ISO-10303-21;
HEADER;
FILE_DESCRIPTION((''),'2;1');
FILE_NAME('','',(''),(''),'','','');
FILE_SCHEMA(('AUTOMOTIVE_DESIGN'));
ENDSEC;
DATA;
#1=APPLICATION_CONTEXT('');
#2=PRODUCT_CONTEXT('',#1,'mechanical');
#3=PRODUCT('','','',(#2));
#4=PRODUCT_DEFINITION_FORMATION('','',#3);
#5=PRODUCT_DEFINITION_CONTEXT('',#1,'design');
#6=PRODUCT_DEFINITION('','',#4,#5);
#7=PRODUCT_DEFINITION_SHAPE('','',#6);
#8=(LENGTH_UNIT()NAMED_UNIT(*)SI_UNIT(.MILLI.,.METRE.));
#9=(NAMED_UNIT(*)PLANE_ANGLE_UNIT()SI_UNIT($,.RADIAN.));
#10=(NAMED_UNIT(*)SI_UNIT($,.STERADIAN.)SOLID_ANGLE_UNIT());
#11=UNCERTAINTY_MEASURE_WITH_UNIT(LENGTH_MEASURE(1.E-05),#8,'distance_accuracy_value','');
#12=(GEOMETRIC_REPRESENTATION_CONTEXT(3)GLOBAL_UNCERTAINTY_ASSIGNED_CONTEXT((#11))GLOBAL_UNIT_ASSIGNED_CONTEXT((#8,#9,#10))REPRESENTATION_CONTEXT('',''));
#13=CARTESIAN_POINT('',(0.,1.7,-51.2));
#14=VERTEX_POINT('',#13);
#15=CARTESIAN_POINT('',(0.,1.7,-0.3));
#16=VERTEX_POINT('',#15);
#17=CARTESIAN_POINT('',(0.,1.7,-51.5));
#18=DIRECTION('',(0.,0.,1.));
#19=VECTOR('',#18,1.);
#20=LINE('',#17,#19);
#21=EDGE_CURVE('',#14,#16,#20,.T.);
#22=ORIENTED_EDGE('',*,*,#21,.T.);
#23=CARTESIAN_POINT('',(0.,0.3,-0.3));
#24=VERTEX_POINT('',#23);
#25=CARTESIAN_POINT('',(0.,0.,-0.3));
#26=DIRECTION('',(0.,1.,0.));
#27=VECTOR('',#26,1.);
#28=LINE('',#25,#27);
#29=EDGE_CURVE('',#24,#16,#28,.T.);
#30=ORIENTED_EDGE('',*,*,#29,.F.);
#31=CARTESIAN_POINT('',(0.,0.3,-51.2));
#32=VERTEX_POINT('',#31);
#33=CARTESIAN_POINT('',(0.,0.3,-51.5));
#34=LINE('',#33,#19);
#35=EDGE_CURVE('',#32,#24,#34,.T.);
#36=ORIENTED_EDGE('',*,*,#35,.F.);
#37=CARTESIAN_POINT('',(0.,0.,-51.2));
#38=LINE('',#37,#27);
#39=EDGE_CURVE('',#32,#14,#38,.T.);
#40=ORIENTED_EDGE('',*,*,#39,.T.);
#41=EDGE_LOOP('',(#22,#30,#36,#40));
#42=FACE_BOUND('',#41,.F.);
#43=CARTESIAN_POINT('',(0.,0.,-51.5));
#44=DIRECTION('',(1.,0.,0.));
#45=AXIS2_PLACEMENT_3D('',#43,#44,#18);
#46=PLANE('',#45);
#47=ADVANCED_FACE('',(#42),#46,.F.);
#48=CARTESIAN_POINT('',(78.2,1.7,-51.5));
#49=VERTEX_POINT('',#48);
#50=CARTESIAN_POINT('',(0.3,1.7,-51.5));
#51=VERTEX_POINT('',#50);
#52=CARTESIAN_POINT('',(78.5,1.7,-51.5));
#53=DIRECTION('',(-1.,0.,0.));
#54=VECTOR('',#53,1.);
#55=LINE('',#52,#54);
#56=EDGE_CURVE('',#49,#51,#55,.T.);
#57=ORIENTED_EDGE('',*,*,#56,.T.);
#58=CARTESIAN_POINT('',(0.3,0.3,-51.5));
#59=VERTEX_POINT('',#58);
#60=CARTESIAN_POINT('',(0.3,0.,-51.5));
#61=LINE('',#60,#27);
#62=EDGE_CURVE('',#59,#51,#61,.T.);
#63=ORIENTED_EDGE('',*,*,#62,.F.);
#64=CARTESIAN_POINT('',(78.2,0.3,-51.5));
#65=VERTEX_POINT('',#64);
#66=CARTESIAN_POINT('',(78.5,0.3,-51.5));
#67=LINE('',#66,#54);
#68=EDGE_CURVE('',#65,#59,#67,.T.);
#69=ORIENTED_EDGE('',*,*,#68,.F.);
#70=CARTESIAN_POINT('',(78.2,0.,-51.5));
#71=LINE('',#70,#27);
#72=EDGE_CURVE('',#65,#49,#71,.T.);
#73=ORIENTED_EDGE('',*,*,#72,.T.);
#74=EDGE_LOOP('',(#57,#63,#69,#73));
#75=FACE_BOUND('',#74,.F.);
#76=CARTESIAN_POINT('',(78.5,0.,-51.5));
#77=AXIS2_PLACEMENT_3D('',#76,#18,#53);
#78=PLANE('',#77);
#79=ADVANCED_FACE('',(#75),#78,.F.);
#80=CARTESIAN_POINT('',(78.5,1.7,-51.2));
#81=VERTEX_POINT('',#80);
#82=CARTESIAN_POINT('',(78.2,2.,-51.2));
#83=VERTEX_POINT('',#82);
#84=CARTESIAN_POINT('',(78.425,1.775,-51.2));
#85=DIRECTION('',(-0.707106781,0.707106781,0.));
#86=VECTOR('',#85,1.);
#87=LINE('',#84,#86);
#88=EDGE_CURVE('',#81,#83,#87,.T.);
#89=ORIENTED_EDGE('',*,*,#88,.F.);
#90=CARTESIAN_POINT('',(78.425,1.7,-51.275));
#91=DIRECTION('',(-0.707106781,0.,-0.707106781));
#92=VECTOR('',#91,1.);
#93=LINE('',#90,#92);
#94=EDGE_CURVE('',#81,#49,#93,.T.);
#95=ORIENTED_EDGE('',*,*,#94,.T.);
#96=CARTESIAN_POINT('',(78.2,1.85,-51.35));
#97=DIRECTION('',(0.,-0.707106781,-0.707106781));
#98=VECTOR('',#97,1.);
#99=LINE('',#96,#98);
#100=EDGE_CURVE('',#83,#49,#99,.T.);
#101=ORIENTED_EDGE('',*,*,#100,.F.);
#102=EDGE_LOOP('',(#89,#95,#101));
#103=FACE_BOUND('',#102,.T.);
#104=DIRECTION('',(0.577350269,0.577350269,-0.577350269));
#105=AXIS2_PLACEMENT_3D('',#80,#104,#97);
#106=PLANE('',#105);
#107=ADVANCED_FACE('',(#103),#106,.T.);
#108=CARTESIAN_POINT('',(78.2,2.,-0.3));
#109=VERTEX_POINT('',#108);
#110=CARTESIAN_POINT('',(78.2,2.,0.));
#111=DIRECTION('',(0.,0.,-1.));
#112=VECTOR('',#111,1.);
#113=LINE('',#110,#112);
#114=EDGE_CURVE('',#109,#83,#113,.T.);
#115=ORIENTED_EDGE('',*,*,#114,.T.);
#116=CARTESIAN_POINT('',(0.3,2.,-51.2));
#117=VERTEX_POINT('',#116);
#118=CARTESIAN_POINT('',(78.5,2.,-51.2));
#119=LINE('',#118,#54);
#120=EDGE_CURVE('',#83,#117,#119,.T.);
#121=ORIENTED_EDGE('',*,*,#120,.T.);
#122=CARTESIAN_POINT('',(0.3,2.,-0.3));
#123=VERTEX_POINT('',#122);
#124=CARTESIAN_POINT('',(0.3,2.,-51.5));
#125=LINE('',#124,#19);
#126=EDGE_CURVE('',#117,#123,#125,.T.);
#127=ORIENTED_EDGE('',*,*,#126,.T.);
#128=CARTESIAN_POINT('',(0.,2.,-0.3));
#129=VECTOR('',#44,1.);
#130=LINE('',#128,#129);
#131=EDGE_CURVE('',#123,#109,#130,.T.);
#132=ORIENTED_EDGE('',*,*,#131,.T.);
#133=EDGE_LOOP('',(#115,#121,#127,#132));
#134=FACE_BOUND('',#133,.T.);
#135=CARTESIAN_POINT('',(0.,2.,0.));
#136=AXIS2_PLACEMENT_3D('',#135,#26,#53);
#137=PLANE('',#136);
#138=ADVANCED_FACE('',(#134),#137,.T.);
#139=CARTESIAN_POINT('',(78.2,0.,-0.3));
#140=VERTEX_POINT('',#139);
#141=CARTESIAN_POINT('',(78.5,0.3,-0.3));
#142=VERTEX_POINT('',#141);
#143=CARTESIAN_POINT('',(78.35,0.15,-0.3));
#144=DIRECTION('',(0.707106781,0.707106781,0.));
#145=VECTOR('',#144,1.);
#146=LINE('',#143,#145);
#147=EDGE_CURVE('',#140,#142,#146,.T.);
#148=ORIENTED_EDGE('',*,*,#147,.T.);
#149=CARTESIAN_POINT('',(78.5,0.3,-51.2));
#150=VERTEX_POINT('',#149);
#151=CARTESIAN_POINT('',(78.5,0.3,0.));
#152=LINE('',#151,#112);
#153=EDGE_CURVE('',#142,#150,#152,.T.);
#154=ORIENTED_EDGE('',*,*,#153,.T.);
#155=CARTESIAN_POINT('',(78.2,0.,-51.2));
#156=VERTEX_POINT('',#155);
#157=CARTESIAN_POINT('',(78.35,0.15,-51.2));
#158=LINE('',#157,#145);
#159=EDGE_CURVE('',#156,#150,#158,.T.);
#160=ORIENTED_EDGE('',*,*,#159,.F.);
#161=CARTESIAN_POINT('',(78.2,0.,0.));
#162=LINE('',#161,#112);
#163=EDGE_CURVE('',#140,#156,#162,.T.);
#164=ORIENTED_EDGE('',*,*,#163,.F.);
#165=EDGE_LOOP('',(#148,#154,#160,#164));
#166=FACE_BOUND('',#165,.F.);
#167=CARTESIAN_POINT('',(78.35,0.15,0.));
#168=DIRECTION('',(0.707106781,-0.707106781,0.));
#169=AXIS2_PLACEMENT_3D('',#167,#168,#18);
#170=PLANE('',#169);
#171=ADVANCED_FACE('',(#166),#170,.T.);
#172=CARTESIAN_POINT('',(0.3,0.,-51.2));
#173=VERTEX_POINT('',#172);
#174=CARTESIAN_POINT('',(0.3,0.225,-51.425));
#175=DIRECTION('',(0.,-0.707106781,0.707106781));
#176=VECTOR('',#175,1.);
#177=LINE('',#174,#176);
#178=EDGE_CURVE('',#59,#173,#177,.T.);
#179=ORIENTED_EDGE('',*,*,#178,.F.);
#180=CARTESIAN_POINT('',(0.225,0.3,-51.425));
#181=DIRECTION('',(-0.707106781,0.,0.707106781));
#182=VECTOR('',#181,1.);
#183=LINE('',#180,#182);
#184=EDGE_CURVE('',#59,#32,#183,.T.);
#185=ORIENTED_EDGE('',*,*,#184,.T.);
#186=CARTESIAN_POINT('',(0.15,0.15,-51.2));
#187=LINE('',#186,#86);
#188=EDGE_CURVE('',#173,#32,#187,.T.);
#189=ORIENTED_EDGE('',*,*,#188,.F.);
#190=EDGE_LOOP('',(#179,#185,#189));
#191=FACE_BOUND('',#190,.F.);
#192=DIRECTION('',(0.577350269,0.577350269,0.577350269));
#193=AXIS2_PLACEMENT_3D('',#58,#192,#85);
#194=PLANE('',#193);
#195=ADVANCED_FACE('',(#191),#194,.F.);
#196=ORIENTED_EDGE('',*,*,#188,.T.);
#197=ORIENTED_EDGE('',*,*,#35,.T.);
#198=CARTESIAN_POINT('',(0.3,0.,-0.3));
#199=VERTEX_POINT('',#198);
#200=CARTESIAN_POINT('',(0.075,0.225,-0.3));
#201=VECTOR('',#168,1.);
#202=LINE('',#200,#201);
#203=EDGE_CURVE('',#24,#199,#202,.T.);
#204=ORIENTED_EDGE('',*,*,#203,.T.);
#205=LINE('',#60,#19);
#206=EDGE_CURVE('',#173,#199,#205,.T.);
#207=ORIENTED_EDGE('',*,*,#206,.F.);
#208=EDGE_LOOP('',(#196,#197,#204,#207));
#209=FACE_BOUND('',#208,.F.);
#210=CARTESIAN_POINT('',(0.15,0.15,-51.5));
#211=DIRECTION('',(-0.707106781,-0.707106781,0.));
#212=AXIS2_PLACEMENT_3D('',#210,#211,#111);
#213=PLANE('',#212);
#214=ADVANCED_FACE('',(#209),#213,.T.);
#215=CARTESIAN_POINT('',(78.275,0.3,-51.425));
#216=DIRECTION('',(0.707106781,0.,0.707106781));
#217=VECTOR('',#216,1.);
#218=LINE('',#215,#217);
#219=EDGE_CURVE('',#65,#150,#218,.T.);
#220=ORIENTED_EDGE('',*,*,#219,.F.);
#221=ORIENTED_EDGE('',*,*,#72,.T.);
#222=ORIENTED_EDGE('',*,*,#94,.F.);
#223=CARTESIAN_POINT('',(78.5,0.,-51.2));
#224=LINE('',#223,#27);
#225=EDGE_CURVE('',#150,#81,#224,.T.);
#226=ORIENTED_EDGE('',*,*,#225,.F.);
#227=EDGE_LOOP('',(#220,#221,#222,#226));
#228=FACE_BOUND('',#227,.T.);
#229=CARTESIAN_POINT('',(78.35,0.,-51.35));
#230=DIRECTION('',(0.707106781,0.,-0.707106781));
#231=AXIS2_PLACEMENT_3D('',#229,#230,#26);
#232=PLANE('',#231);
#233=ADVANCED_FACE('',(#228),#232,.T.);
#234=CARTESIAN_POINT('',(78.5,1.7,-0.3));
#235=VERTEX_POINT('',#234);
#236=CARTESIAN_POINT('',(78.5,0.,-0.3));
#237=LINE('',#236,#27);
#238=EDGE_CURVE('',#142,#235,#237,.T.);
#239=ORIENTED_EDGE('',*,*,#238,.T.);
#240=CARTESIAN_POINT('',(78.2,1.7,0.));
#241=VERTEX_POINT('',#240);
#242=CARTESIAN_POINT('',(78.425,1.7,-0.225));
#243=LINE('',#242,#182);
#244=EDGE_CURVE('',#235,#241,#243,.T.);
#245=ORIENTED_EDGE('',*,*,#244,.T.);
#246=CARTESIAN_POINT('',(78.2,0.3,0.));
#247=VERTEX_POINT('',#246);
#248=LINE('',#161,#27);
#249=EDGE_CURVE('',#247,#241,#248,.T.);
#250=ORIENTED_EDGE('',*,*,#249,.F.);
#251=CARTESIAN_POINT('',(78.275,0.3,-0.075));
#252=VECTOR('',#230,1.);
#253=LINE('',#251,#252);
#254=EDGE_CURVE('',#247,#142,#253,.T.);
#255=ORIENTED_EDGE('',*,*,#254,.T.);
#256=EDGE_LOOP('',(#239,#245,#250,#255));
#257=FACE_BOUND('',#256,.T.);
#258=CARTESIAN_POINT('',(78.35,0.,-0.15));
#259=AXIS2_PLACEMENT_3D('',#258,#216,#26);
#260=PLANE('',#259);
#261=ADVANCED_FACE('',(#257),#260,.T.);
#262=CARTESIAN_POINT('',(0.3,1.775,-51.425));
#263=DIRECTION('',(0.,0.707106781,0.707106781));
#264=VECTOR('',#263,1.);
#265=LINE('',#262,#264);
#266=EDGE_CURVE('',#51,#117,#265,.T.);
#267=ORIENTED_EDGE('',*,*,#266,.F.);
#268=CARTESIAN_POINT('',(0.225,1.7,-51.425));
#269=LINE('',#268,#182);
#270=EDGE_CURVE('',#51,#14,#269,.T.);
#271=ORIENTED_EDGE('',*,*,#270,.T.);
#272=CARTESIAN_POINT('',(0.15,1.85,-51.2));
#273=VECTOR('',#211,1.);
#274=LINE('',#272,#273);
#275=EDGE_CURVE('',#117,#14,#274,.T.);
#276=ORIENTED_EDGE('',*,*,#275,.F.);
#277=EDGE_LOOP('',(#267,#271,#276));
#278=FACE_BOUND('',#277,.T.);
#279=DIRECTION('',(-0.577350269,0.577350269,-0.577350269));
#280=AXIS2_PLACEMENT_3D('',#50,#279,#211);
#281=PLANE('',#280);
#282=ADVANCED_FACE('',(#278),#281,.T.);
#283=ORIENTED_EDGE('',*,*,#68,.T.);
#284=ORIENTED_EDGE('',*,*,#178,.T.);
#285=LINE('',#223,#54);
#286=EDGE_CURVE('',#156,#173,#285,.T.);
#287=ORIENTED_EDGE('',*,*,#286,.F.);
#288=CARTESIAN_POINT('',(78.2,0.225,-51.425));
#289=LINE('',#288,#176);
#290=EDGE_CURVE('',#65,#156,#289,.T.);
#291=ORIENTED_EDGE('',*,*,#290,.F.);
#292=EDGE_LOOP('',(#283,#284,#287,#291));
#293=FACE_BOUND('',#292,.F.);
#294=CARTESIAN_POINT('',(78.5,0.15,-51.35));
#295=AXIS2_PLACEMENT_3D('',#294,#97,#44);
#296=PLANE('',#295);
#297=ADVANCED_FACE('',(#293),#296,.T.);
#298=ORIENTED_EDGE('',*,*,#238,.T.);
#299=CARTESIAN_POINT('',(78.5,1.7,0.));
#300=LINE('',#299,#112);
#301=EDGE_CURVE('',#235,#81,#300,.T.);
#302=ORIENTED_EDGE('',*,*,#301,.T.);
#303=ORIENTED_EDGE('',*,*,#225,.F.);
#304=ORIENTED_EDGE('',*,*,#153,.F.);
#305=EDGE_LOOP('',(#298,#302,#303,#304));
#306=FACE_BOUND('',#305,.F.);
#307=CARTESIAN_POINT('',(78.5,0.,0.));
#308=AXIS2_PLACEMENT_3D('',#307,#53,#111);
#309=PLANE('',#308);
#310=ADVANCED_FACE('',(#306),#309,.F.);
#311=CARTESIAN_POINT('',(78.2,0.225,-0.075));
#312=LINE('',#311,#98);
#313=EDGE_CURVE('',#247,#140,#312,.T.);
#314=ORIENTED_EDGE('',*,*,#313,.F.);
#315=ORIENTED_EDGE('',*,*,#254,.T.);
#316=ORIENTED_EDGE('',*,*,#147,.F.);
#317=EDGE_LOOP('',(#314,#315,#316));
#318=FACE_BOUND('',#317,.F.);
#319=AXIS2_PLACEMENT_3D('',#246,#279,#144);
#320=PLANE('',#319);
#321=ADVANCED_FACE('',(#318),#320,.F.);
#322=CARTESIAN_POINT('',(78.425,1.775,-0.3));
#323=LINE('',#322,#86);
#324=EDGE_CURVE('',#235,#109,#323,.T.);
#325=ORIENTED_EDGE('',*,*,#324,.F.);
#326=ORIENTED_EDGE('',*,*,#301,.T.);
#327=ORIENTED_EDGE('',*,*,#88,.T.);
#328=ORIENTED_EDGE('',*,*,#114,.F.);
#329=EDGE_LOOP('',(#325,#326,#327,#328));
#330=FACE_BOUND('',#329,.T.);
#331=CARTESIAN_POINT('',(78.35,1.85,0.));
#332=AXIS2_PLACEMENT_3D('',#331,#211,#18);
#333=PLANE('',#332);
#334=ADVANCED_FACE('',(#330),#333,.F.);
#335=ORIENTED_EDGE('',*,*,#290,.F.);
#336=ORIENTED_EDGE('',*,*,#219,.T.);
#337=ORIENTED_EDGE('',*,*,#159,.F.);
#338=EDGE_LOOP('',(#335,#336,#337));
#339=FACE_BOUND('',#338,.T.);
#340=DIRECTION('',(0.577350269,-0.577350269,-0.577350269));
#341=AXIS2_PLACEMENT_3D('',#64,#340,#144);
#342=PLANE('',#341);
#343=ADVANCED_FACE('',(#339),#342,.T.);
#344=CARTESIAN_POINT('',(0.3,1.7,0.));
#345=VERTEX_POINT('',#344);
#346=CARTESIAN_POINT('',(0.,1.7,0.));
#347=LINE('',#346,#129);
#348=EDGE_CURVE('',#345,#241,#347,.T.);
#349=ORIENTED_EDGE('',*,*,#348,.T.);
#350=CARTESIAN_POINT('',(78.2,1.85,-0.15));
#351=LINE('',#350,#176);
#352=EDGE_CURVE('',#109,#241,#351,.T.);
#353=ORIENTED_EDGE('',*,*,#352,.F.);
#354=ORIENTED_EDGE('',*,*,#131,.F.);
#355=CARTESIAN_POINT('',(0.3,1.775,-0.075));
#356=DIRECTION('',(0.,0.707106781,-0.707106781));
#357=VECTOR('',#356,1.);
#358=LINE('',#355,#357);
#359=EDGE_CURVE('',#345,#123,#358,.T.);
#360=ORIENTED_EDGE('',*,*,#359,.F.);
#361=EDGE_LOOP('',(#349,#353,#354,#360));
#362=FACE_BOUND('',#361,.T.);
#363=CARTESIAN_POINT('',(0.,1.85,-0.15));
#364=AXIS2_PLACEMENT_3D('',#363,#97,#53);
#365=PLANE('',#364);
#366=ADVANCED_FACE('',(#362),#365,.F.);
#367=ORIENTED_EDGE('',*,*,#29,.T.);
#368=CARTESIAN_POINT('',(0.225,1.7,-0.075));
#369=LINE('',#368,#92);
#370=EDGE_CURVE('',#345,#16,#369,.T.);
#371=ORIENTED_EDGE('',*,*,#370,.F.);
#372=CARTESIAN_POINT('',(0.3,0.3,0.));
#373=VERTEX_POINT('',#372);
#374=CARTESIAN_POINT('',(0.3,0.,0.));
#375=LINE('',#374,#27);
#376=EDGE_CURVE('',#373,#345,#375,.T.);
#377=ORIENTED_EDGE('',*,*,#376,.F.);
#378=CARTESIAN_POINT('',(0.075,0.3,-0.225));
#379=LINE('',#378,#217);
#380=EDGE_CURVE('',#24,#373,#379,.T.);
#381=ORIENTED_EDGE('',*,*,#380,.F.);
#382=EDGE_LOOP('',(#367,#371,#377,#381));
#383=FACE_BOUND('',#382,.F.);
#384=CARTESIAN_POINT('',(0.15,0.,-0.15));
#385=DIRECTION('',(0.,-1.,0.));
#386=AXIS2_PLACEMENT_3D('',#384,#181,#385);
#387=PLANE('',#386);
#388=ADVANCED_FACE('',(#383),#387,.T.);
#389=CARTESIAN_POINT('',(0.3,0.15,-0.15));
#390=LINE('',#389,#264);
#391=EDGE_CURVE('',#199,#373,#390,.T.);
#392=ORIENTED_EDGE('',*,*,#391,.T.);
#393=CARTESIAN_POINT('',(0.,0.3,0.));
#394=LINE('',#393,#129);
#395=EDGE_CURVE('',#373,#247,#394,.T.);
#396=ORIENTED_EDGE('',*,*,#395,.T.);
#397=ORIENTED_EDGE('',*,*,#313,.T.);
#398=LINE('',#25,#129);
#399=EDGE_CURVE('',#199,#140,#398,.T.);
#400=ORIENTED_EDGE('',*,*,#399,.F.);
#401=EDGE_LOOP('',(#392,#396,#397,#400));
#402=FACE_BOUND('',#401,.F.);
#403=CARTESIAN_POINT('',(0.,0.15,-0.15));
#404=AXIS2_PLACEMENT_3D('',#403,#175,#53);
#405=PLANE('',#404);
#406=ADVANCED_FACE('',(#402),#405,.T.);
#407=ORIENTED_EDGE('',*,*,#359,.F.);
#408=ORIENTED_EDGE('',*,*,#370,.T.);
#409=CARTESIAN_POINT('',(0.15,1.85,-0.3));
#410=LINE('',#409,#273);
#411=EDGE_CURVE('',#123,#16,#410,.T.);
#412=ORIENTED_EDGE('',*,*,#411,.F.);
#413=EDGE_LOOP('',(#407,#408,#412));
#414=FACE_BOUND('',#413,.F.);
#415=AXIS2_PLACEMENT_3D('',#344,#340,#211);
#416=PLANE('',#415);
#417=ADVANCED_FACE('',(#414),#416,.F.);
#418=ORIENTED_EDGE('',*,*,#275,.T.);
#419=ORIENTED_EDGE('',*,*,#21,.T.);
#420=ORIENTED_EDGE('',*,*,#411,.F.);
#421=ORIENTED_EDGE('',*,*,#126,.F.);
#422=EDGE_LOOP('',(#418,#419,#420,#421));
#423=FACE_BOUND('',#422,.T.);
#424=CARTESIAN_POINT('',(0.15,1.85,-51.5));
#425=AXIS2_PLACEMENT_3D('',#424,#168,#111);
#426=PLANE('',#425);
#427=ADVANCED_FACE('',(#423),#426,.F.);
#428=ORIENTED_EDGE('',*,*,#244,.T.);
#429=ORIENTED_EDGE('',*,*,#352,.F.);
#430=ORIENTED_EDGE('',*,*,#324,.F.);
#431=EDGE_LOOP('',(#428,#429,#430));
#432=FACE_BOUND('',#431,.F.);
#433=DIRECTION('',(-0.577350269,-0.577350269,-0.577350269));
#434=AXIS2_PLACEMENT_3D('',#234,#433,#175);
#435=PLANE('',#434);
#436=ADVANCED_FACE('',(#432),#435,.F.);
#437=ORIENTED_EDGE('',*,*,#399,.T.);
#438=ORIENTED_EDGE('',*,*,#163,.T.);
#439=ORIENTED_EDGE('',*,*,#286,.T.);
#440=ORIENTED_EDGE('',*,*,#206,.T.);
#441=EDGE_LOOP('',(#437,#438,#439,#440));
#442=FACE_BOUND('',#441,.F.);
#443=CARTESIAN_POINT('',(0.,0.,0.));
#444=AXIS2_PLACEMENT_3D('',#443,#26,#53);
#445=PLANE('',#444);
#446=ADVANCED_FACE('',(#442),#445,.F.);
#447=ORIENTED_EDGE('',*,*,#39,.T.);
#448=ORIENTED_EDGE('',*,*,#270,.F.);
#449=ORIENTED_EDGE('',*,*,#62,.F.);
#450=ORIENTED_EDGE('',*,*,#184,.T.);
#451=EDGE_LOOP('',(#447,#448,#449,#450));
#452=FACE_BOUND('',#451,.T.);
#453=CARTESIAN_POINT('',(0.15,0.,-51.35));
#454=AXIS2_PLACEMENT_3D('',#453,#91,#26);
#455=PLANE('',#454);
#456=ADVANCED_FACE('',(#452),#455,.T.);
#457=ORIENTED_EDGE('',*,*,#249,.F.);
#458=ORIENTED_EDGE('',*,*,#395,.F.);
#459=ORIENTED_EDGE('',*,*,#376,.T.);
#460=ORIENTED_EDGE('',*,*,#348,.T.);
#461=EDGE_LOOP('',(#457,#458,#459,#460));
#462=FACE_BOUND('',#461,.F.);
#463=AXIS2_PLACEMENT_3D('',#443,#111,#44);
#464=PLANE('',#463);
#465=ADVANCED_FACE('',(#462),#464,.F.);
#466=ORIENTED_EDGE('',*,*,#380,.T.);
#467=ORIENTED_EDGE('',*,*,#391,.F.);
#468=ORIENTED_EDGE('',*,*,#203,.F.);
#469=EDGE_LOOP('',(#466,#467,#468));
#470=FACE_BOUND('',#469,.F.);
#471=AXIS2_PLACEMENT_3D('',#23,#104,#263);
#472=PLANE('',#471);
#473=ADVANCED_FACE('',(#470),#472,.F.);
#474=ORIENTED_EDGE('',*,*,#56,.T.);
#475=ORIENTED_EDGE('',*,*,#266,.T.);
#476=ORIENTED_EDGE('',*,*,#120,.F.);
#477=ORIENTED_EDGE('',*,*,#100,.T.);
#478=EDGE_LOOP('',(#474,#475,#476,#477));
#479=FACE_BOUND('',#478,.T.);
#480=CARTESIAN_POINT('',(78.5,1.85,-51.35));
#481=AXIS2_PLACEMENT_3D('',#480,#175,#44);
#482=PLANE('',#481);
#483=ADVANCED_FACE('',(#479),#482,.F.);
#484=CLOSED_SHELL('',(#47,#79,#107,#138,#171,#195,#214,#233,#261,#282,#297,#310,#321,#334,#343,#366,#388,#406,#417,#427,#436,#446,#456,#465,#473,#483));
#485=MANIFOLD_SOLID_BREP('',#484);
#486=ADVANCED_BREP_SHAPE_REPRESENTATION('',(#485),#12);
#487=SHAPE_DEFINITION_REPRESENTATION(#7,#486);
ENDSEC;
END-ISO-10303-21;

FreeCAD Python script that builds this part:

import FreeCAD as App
import Part
import Sketcher


def add_polygon(sketch, points):
    """Adds a closed chain of lines whose ends are joined by coincident constraints."""
    first, n = sketch.GeometryCount, len(points)
    for a, b in zip(points, points[1:] + points[:1]):
        sketch.addGeometry(Part.LineSegment(App.Vector(*a, 0), App.Vector(*b, 0)), False)
    for i in range(n):
        sketch.addConstraint(Sketcher.Constraint("Coincident", first + i, 2, first + (i + 1) % n, 1))

doc = App.newDocument("Part")
params = doc.addObject("Spreadsheet::Sheet", "Params")
for row, (alias, value) in enumerate([
    ("sketch1_width", "78.5 mm"),
    ("sketch1_height", "51.5 mm"),
    ("pad1_length", "2 mm"),
    ("chamfer_size", "0.3 mm"),
], start=1):
    params.set(f"A{row}", alias)
    params.set(f"B{row}", "=" + value)
    params.setAlias(f"B{row}", alias)

body = doc.addObject("PartDesign::Body", "Body")

# Sketch on XZ plane
sketch1 = body.newObject("Sketcher::SketchObject", "Sketch")
sketch1.AttachmentSupport = (doc.getObject("XZ_Plane"), [""])
sketch1.MapMode = "FlatFace"
add_polygon(sketch1, [(0, -52), (0, 0), (78, 0), (78, -52)])  # lines 0-3
sketch1.addConstraint(Sketcher.Constraint("Vertical", 0))
sketch1.addConstraint(Sketcher.Constraint("Horizontal", 1))
sketch1.addConstraint(Sketcher.Constraint("Vertical", 2))
sketch1.addConstraint(Sketcher.Constraint("Horizontal", 3))
sketch1.addConstraint(Sketcher.Constraint("Coincident", 0, 2, -1, 1))
sketch1.addConstraint(Sketcher.Constraint("DistanceX", 1, 1, 1, 2, 78.5))
sketch1.addConstraint(Sketcher.Constraint("DistanceY", 0, 1, 0, 2, 51.5))
sketch1.setExpression("Constraints[9]", "Params.sketch1_width")
sketch1.setExpression("Constraints[10]", "Params.sketch1_height")
pad1 = body.newObject("PartDesign::Pad", "Pad")
pad1.Profile = sketch1
pad1.setExpression("Length", "Params.pad1_length")
pad1.Reversed = True
doc.recompute()

chamfer = body.newObject("PartDesign::Chamfer", "Chamfer")
chamfer.Base = (pad1, ["Edge1"])
chamfer.UseAllEdges = True
chamfer.setExpression("Size", "Params.chamfer_size")

doc.recompute()
